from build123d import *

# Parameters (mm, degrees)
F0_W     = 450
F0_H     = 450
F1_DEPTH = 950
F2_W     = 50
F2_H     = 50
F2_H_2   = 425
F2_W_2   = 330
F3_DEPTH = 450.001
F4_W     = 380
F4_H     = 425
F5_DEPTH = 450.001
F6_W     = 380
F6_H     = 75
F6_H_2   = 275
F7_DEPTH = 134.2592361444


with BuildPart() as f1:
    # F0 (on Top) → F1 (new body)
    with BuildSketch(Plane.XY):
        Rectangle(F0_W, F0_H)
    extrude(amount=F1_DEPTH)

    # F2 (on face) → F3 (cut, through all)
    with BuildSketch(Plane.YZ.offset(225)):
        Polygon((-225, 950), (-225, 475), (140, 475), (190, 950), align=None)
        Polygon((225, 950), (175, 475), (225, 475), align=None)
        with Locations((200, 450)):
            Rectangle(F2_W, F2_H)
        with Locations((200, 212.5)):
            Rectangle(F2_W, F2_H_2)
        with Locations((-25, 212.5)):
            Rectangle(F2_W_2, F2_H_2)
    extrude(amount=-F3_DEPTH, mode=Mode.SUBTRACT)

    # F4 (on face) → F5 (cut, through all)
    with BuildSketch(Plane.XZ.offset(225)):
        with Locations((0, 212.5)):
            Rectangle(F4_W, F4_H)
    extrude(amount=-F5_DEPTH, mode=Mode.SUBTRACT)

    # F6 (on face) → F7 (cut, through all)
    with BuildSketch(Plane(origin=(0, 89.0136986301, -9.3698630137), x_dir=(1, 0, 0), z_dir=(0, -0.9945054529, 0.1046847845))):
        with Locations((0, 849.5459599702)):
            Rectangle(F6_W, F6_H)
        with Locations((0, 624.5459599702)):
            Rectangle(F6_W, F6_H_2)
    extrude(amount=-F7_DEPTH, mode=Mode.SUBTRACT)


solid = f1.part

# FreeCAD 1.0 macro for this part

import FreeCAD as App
import Part
import Sketcher

V = App.Vector
Q = App.Units.Quantity

doc = App.newDocument("Part")
params = doc.addObject("Spreadsheet::Sheet", "Params")
for row, (alias, value) in enumerate([
    ("sketch1_width", "450 mm"),
    ("pad1_length", "950 mm"),
    ("sketch2_width", "365 mm"),
    ("sketch2_width2", "415 mm"),
    ("sketch2_width3", "330 mm"),
    ("sketch2_height", "475 mm"),
    ("sketch2_height2", "425 mm"),
    ("sketch3_width", "380 mm"),
    ("sketch3_height", "425 mm"),
    ("sketch4_width", "380 mm"),
    ("sketch4_height", "75 mm"),
    ("sketch4_height2", "275 mm"),
], start=1):
    params.set(f"A{row}", alias)
    params.set(f"B{row}", "=" + value)
    params.setAlias(f"B{row}", alias)

body = doc.addObject("PartDesign::Body", "Body")

sketch1 = doc.addObject("Sketcher::SketchObject", "Sketch")
body.addObject(sketch1)
sketch1.AttachmentSupport = (doc.XY_Plane, [""])
sketch1.MapMode = "FlatFace"
sketch1.addGeometry(Part.LineSegment(V(-225, 225, 0), V(-225, -225, 0)), False)
sketch1.addGeometry(Part.LineSegment(V(-225, -225, 0), V(225, -225, 0)), False)
sketch1.addGeometry(Part.LineSegment(V(225, -225, 0), V(225, 225, 0)), False)
sketch1.addGeometry(Part.LineSegment(V(225, 225, 0), V(-225, 225, 0)), False)
sketch1.addConstraint(Sketcher.Constraint("Coincident", 0, 2, 1, 1))
sketch1.addConstraint(Sketcher.Constraint("Coincident", 1, 2, 2, 1))
sketch1.addConstraint(Sketcher.Constraint("Coincident", 2, 2, 3, 1))
sketch1.addConstraint(Sketcher.Constraint("Coincident", 3, 2, 0, 1))
sketch1.addConstraint(Sketcher.Constraint("Vertical", 0))
sketch1.addConstraint(Sketcher.Constraint("Horizontal", 1))
sketch1.addConstraint(Sketcher.Constraint("Vertical", 2))
sketch1.addConstraint(Sketcher.Constraint("Horizontal", 3))
sketch1.addConstraint(Sketcher.Constraint("Symmetric", 0, 2, 2, 2, -1, 1))
sketch1.addConstraint(Sketcher.Constraint("Equal", 3, 0))
sketch1.addConstraint(Sketcher.Constraint("DistanceX", 1, 1, 1, 2, Q("450 mm")))
sketch1.setExpression("Constraints[10]", "Params.sketch1_width")
pad1 = doc.addObject("PartDesign::Pad", "Pad")
body.addObject(pad1)
pad1.Profile = sketch1
pad1.setExpression("Length", "Params.pad1_length")

sketch2 = doc.addObject("Sketcher::SketchObject", "Sketch001")
body.addObject(sketch2)
sketch2.AttachmentSupport = (doc.YZ_Plane, [""])
sketch2.MapMode = "FlatFace"
sketch2.AttachmentOffset = App.Placement(V(0, 0, 225), App.Rotation())
sketch2.addGeometry(Part.LineSegment(V(-225, 950, 0), V(-225, 475, 0)), False)
sketch2.addGeometry(Part.LineSegment(V(-225, 475, 0), V(140, 475, 0)), False)
sketch2.addGeometry(Part.LineSegment(V(140, 475, 0), V(190, 950, 0)), False)
sketch2.addGeometry(Part.LineSegment(V(190, 950, 0), V(-225, 950, 0)), False)
sketch2.addGeometry(Part.LineSegment(V(225, 950, 0), V(175, 475, 0)), False)
sketch2.addGeometry(Part.LineSegment(V(175, 475, 0), V(175, 0, 0)), False)
sketch2.addGeometry(Part.LineSegment(V(175, 0, 0), V(225, 0, 0)), False)
sketch2.addGeometry(Part.LineSegment(V(225, 0, 0), V(225, 950, 0)), False)
sketch2.addGeometry(Part.LineSegment(V(-190, 425, 0), V(-190, 0, 0)), False)
sketch2.addGeometry(Part.LineSegment(V(-190, 0, 0), V(140, 0, 0)), False)
sketch2.addGeometry(Part.LineSegment(V(140, 0, 0), V(140, 425, 0)), False)
sketch2.addGeometry(Part.LineSegment(V(140, 425, 0), V(-190, 425, 0)), False)
sketch2.addConstraint(Sketcher.Constraint("Coincident", 0, 2, 1, 1))
sketch2.addConstraint(Sketcher.Constraint("Coincident", 1, 2, 2, 1))
sketch2.addConstraint(Sketcher.Constraint("Coincident", 2, 2, 3, 1))
sketch2.addConstraint(Sketcher.Constraint("Coincident", 3, 2, 0, 1))
sketch2.addConstraint(Sketcher.Constraint("Coincident", 4, 2, 5, 1))
sketch2.addConstraint(Sketcher.Constraint("Coincident", 5, 2, 6, 1))
sketch2.addConstraint(Sketcher.Constraint("Coincident", 6, 2, 7, 1))
sketch2.addConstraint(Sketcher.Constraint("Coincident", 7, 2, 4, 1))
sketch2.addConstraint(Sketcher.Constraint("Coincident", 8, 2, 9, 1))
sketch2.addConstraint(Sketcher.Constraint("Coincident", 9, 2, 10, 1))
sketch2.addConstraint(Sketcher.Constraint("Coincident", 10, 2, 11, 1))
sketch2.addConstraint(Sketcher.Constraint("Coincident", 11, 2, 8, 1))
sketch2.addConstraint(Sketcher.Constraint("Vertical", 0))
sketch2.addConstraint(Sketcher.Constraint("Horizontal", 1))
sketch2.addConstraint(Sketcher.Constraint("Horizontal", 3))
sketch2.addConstraint(Sketcher.Constraint("Vertical", 5))
sketch2.addConstraint(Sketcher.Constraint("Horizontal", 6))
sketch2.addConstraint(Sketcher.Constraint("Vertical", 7))
sketch2.addConstraint(Sketcher.Constraint("Vertical", 8))
sketch2.addConstraint(Sketcher.Constraint("Horizontal", 9))
sketch2.addConstraint(Sketcher.Constraint("Vertical", 10))
sketch2.addConstraint(Sketcher.Constraint("Horizontal", 11))
sketch2.addConstraint(Sketcher.Constraint("Symmetric", 3, 2, 7, 2, -2))
sketch2.addConstraint(Sketcher.Constraint("PointOnObject", 5, 2, -1))
sketch2.addConstraint(Sketcher.Constraint("PointOnObject", 8, 2, -1))
sketch2.addConstraint(Sketcher.Constraint("Parallel", 2, 4))
sketch2.addConstraint(Sketcher.Constraint("Horizontal", 1, 2, 4, 2))
sketch2.addConstraint(Sketcher.Constraint("Vertical", 1, 2, 9, 2))
sketch2.addConstraint(Sketcher.Constraint("Equal", 0, 5))
sketch2.addConstraint(Sketcher.Constraint("DistanceX", 1, 1, 1, 2, Q("365 mm")))
sketch2.addConstraint(Sketcher.Constraint("DistanceX", 3, 2, 3, 1, Q("415 mm")))
sketch2.addConstraint(Sketcher.Constraint("DistanceX", 9, 1, 9, 2, Q("330 mm")))
sketch2.addConstraint(Sketcher.Constraint("DistanceY", 0, 2, 0, 1, Q("475 mm")))
sketch2.addConstraint(Sketcher.Constraint("DistanceY", 8, 2, 8, 1, Q("425 mm")))
sketch2.addConstraint(Sketcher.Constraint("DistanceX", 0, 2, -1, 1, Q("225 mm")))
sketch2.setExpression("Constraints[29]", "Params.sketch2_width")
sketch2.setExpression("Constraints[30]", "Params.sketch2_width2")
sketch2.setExpression("Constraints[31]", "Params.sketch2_width3")
sketch2.setExpression("Constraints[32]", "Params.sketch2_height")
sketch2.setExpression("Constraints[33]", "Params.sketch2_height2")
pocket1 = doc.addObject("PartDesign::Pocket", "Pocket")
body.addObject(pocket1)
pocket1.Profile = sketch2
pocket1.Type = "ThroughAll"

sketch3 = doc.addObject("Sketcher::SketchObject", "Sketch002")
body.addObject(sketch3)
sketch3.AttachmentSupport = (doc.XZ_Plane, [""])
sketch3.MapMode = "FlatFace"
sketch3.AttachmentOffset = App.Placement(V(0, 0, 225), App.Rotation())
sketch3.addGeometry(Part.LineSegment(V(-190, 425, 0), V(-190, 0, 0)), False)
sketch3.addGeometry(Part.LineSegment(V(-190, 0, 0), V(190, 0, 0)), False)
sketch3.addGeometry(Part.LineSegment(V(190, 0, 0), V(190, 425, 0)), False)
sketch3.addGeometry(Part.LineSegment(V(190, 425, 0), V(-190, 425, 0)), False)
sketch3.addConstraint(Sketcher.Constraint("Coincident", 0, 2, 1, 1))
sketch3.addConstraint(Sketcher.Constraint("Coincident", 1, 2, 2, 1))
sketch3.addConstraint(Sketcher.Constraint("Coincident", 2, 2, 3, 1))
sketch3.addConstraint(Sketcher.Constraint("Coincident", 3, 2, 0, 1))
sketch3.addConstraint(Sketcher.Constraint("Vertical", 0))
sketch3.addConstraint(Sketcher.Constraint("Horizontal", 1))
sketch3.addConstraint(Sketcher.Constraint("Vertical", 2))
sketch3.addConstraint(Sketcher.Constraint("Horizontal", 3))
sketch3.addConstraint(Sketcher.Constraint("Symmetric", 0, 2, 1, 2, -1, 1))
sketch3.addConstraint(Sketcher.Constraint("DistanceX", 1, 1, 1, 2, Q("380 mm")))
sketch3.addConstraint(Sketcher.Constraint("DistanceY", 0, 2, 0, 1, Q("425 mm")))
sketch3.setExpression("Constraints[9]", "Params.sketch3_width")
sketch3.setExpression("Constraints[10]", "Params.sketch3_height")
pocket2 = doc.addObject("PartDesign::Pocket", "Pocket001")
body.addObject(pocket2)
pocket2.Profile = sketch3
pocket2.Type = "ThroughAll"

sketch4 = doc.addObject("Sketcher::SketchObject", "Sketch003")
body.addObject(sketch4)
sketch4.Placement = App.Placement(V(0, 89.013699, -9.369863), App.Rotation(V(1, 0, 0), V(0, 0.104684785, 0.994505453), V(0, -0.994505453, 0.104684785), "ZXY"))
sketch4.addGeometry(Part.LineSegment(V(-190, 887.04596, 0), V(-190, 812.04596, 0)), False)
sketch4.addGeometry(Part.LineSegment(V(-190, 812.04596, 0), V(190, 812.04596, 0)), False)
sketch4.addGeometry(Part.LineSegment(V(190, 812.04596, 0), V(190, 887.04596, 0)), False)
sketch4.addGeometry(Part.LineSegment(V(190, 887.04596, 0), V(-190, 887.04596, 0)), False)
sketch4.addGeometry(Part.LineSegment(V(-190, 762.04596, 0), V(-190, 487.04596, 0)), False)
sketch4.addGeometry(Part.LineSegment(V(-190, 487.04596, 0), V(190, 487.04596, 0)), False)
sketch4.addGeometry(Part.LineSegment(V(190, 487.04596, 0), V(190, 762.04596, 0)), False)
sketch4.addGeometry(Part.LineSegment(V(190, 762.04596, 0), V(-190, 762.04596, 0)), False)
sketch4.addConstraint(Sketcher.Constraint("Coincident", 0, 2, 1, 1))
sketch4.addConstraint(Sketcher.Constraint("Coincident", 1, 2, 2, 1))
sketch4.addConstraint(Sketcher.Constraint("Coincident", 2, 2, 3, 1))
sketch4.addConstraint(Sketcher.Constraint("Coincident", 3, 2, 0, 1))
sketch4.addConstraint(Sketcher.Constraint("Coincident", 4, 2, 5, 1))
sketch4.addConstraint(Sketcher.Constraint("Coincident", 5, 2, 6, 1))
sketch4.addConstraint(Sketcher.Constraint("Coincident", 6, 2, 7, 1))
sketch4.addConstraint(Sketcher.Constraint("Coincident", 7, 2, 4, 1))
sketch4.addConstraint(Sketcher.Constraint("Vertical", 0))
sketch4.addConstraint(Sketcher.Constraint("Horizontal", 1))
sketch4.addConstraint(Sketcher.Constraint("Vertical", 2))
sketch4.addConstraint(Sketcher.Constraint("Horizontal", 3))
sketch4.addConstraint(Sketcher.Constraint("Vertical", 4))
sketch4.addConstraint(Sketcher.Constraint("Horizontal", 5))
sketch4.addConstraint(Sketcher.Constraint("Vertical", 6))
sketch4.addConstraint(Sketcher.Constraint("Horizontal", 7))
sketch4.addConstraint(Sketcher.Constraint("Vertical", 3, 2, 4, 2))
sketch4.addConstraint(Sketcher.Constraint("Vertical", 2, 2, 5, 2))
sketch4.addConstraint(Sketcher.Constraint("DistanceX", 1, 1, 1, 2, Q("380 mm")))
sketch4.addConstraint(Sketcher.Constraint("DistanceY", 0, 2, 0, 1, Q("75 mm")))
sketch4.addConstraint(Sketcher.Constraint("DistanceY", 4, 2, 4, 1, Q("275 mm")))
sketch4.addConstraint(Sketcher.Constraint("DistanceX", 0, 2, -1, 1, Q("190 mm")))
sketch4.addConstraint(Sketcher.Constraint("DistanceY", 4, 2, 0, 2, Q("325 mm")))
sketch4.addConstraint(Sketcher.Constraint("DistanceY", -1, 1, 0, 2, Q("812.04596 mm")))
sketch4.setExpression("Constraints[18]", "Params.sketch4_width")
sketch4.setExpression("Constraints[19]", "Params.sketch4_height")
sketch4.setExpression("Constraints[20]", "Params.sketch4_height2")
pocket3 = doc.addObject("PartDesign::Pocket", "Pocket002")
body.addObject(pocket3)
pocket3.Profile = sketch4
pocket3.Type = "ThroughAll"

doc.recompute()
